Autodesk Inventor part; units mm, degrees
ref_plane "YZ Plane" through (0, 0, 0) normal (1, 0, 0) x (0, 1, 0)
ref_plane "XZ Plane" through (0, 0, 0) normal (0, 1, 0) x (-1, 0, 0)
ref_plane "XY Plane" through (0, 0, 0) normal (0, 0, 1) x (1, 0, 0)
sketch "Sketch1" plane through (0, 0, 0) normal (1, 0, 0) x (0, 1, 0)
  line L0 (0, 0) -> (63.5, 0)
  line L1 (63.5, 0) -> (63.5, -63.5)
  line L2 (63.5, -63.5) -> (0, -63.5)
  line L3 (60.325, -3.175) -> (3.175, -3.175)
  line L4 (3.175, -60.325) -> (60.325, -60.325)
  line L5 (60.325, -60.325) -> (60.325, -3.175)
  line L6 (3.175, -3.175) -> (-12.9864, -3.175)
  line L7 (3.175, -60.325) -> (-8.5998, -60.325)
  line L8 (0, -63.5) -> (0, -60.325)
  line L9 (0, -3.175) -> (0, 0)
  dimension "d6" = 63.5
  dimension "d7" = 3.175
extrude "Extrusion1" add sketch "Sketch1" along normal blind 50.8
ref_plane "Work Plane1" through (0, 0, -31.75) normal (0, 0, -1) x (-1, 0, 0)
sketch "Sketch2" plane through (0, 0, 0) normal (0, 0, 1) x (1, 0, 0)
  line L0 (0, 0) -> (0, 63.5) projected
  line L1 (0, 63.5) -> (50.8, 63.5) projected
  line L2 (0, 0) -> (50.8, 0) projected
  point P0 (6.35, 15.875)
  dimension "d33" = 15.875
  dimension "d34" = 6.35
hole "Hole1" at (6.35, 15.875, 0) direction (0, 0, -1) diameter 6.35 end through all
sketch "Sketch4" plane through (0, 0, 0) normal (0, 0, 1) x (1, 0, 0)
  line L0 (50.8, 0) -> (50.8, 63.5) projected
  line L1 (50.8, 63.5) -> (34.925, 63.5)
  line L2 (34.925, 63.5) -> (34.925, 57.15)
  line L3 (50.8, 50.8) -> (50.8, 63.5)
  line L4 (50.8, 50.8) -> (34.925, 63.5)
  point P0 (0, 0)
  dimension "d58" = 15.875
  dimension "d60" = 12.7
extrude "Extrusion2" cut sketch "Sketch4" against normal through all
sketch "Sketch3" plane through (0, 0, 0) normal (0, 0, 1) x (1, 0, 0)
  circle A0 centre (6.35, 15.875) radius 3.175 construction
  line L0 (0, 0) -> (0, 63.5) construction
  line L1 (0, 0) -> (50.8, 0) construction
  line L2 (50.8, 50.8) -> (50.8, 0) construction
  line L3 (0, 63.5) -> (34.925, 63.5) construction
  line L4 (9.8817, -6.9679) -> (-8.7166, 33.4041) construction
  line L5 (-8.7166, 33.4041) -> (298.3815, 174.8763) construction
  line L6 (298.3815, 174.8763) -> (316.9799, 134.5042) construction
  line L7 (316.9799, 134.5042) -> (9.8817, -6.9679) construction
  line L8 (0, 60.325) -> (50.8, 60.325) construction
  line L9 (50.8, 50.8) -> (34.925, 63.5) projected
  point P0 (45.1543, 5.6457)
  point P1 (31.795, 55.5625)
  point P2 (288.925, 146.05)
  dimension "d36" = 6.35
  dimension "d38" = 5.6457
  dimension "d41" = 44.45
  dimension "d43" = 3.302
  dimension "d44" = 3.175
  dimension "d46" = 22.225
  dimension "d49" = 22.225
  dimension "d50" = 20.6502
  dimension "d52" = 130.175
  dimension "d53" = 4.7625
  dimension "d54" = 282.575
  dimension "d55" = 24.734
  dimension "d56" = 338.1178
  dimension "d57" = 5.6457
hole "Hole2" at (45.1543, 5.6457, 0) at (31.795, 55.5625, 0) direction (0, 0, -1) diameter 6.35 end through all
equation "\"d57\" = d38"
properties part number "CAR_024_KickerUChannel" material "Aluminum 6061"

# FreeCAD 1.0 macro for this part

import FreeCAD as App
import Part
import Sketcher
Q = App.Units.Quantity

doc = App.newDocument("Part")
body = doc.addObject("PartDesign::Body", "Body")

# Sketch on YZ plane
sketch1 = body.newObject("Sketcher::SketchObject", "Sketch")
sketch1.AttachmentSupport = (doc.getObject("YZ_Plane"), [""])
sketch1.MapMode = "FlatFace"
sketch1.addGeometry([
    Part.LineSegment(App.Vector(63.5, 0, 0), App.Vector(0, 0, 0)),  # 0
    Part.LineSegment(App.Vector(0, 0, 0), App.Vector(0, -3.175, 0)),  # 1
    Part.LineSegment(App.Vector(0, -3.175, 0), App.Vector(60.325, -3.175, 0)),  # 2
    Part.LineSegment(App.Vector(60.325, -3.175, 0), App.Vector(60.325, -60.325, 0)),  # 3
    Part.LineSegment(App.Vector(60.325, -60.325, 0), App.Vector(0, -60.325, 0)),  # 4
    Part.LineSegment(App.Vector(0, -60.325, 0), App.Vector(0, -63.5, 0)),  # 5
    Part.LineSegment(App.Vector(0, -63.5, 0), App.Vector(63.5, -63.5, 0)),  # 6
    Part.LineSegment(App.Vector(63.5, -63.5, 0), App.Vector(63.5, 0, 0)),  # 7
], False)
sketch1.addConstraint([
    Sketcher.Constraint("Coincident", 0, 2, 1, 1),
    Sketcher.Constraint("Coincident", 1, 2, 2, 1),
    Sketcher.Constraint("Coincident", 2, 2, 3, 1),
    Sketcher.Constraint("Coincident", 3, 2, 4, 1),
    Sketcher.Constraint("Coincident", 4, 2, 5, 1),
    Sketcher.Constraint("Coincident", 5, 2, 6, 1),
    Sketcher.Constraint("Coincident", 6, 2, 7, 1),
    Sketcher.Constraint("Coincident", 7, 2, 0, 1),
    Sketcher.Constraint("Horizontal", 0),
    Sketcher.Constraint("Vertical", 1),
    Sketcher.Constraint("Horizontal", 2),
    Sketcher.Constraint("Vertical", 3),
    Sketcher.Constraint("Horizontal", 4),
    Sketcher.Constraint("Vertical", 5),
    Sketcher.Constraint("Horizontal", 6),
    Sketcher.Constraint("Vertical", 7),
    Sketcher.Constraint("Coincident", 0, 2, -1, 1),
    Sketcher.Constraint("PointOnObject", 4, 2, -2),
    Sketcher.Constraint("Equal", 1, 5),
    Sketcher.Constraint("Equal", 6, 7),
    Sketcher.Constraint("DistanceX", 0, 2, 0, 1, Q("2.5 in")),
    Sketcher.Constraint("DistanceY", 1, 2, 1, 1, Q("0.125 in")),
    Sketcher.Constraint("DistanceX", 3, 2, 6, 2, Q("0.125 in")),
])
pad1 = body.newObject("PartDesign::Pad", "Pad")
pad1.Profile = sketch1
pad1.Length = Q("2 in")

# Sketch on XY plane
sketch2 = body.newObject("Sketcher::SketchObject", "Sketch001")
sketch2.AttachmentSupport = (doc.getObject("XY_Plane"), [""])
sketch2.MapMode = "FlatFace"
sketch2.addGeometry(Part.Circle(App.Vector(6.35, 15.875, 0), App.Vector(0, 0, 1), 3.175), False)
sketch2.addConstraint([
    Sketcher.Constraint("Diameter", 0, Q("0.25 in")),
    Sketcher.Constraint("DistanceX", -1, 1, 0, 3, Q("0.25 in")),
    Sketcher.Constraint("DistanceY", -1, 1, 0, 3, Q("0.625 in")),
])
doc.recompute()
hole = body.newObject("PartDesign::Hole", "Hole")
hole.Profile = sketch2
hole.ThreadType = "None"
hole.Diameter = Q("0.25 in")
hole.DepthType = "ThroughAll"

# Sketch on XY plane
sketch3 = body.newObject("Sketcher::SketchObject", "Sketch002")
sketch3.AttachmentSupport = (doc.getObject("XY_Plane"), [""])
sketch3.MapMode = "FlatFace"
sketch3.addGeometry([
    Part.LineSegment(App.Vector(34.925, 63.5, 0), App.Vector(50.8, 50.8, 0)),
    Part.LineSegment(App.Vector(50.8, 50.8, 0), App.Vector(50.8, 63.5, 0)),
    Part.LineSegment(App.Vector(50.8, 63.5, 0), App.Vector(34.925, 63.5, 0)),
], False)
sketch3.addConstraint([
    Sketcher.Constraint("Coincident", 0, 2, 1, 1),
    Sketcher.Constraint("Coincident", 1, 2, 2, 1),
    Sketcher.Constraint("Coincident", 2, 2, 0, 1),
    Sketcher.Constraint("Vertical", 1),
    Sketcher.Constraint("Horizontal", 2),
    Sketcher.Constraint("DistanceY", 1, 1, 1, 2, Q("0.5 in")),
    Sketcher.Constraint("DistanceX", 2, 2, 2, 1, Q("0.625 in")),
    Sketcher.Constraint("DistanceX", -1, 1, 0, 2, Q("2 in")),
    Sketcher.Constraint("DistanceY", -1, 1, 0, 2, Q("2 in")),
])
pocket1 = body.newObject("PartDesign::Pocket", "Pocket")
pocket1.Profile = sketch3
pocket1.Type = "ThroughAll"

# Sketch on XY plane
sketch4 = body.newObject("Sketcher::SketchObject", "Sketch003")
sketch4.AttachmentSupport = (doc.getObject("XY_Plane"), [""])
sketch4.MapMode = "FlatFace"
sketch4.addGeometry([
    Part.Circle(App.Vector(45.1543, 5.6457, 0), App.Vector(0, 0, 1), 3.175),
    Part.Circle(App.Vector(31.795, 55.5625, 0), App.Vector(0, 0, 1), 3.175),
], False)
sketch4.addConstraint([
    Sketcher.Constraint("Equal", 0, 1),
    Sketcher.Constraint("Diameter", 0, Q("0.25 in")),
    Sketcher.Constraint("DistanceY", -1, 1, 1, 3, Q("2.1875 in")),
    Sketcher.Constraint("DistanceX", -1, 1, 0, 3, Q("45.1543 mm")),
    Sketcher.Constraint("DistanceY", -1, 1, 0, 3, Q("5.6457 mm")),
    Sketcher.Constraint("DistanceX", -1, 1, 1, 3, Q("31.795 mm")),
])
doc.recompute()
hole2 = body.newObject("PartDesign::Hole", "Hole001")
hole2.Profile = sketch4
hole2.ThreadType = "None"
hole2.Diameter = Q("0.25 in")
hole2.DepthType = "ThroughAll"

doc.recompute()
